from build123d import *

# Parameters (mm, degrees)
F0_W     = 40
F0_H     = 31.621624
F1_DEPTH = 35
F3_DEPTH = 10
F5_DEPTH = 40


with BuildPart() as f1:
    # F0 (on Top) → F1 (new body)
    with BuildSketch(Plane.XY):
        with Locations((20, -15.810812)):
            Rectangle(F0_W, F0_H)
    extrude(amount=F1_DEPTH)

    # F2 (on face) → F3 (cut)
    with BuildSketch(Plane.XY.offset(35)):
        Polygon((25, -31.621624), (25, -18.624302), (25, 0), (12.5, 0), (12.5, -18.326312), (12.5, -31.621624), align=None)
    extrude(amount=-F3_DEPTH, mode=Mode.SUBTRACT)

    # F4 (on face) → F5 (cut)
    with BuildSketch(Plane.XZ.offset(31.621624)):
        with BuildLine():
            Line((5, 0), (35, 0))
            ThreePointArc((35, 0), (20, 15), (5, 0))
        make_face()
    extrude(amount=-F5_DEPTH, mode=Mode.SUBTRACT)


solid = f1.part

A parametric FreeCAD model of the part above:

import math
import FreeCAD as App
import Part
import Sketcher

doc = App.newDocument("Part")
body = doc.addObject("PartDesign::Body", "Body")

# Sketch on XY plane
sketch1 = doc.addObject("Sketcher::SketchObject", "Sketch")
body.addObject(sketch1)
sketch1.AttachmentSupport = (doc.XY_Plane, [""])
sketch1.MapMode = "FlatFace"
sketch1.addGeometry([
    Part.LineSegment(App.Vector(0, 0, 0), App.Vector(0, -32, 0)),
    Part.LineSegment(App.Vector(0, -32, 0), App.Vector(40, -32, 0)),
    Part.LineSegment(App.Vector(40, -32, 0), App.Vector(40, 0, 0)),
    Part.LineSegment(App.Vector(40, 0, 0), App.Vector(0, 0, 0)),
], False)
sketch1.addConstraint([
    Sketcher.Constraint("Coincident", 0, 2, 1, 1),
    Sketcher.Constraint("Coincident", 1, 2, 2, 1),
    Sketcher.Constraint("Coincident", 2, 2, 3, 1),
    Sketcher.Constraint("Coincident", 3, 2, 0, 1),
    Sketcher.Constraint("Vertical", 0),
    Sketcher.Constraint("Horizontal", 1),
    Sketcher.Constraint("Vertical", 2),
    Sketcher.Constraint("Horizontal", 3),
    Sketcher.Constraint("Coincident", 3, 2, -1, 1),
    Sketcher.Constraint("DistanceX", 1, 1, 1, 2, 40.0),
    Sketcher.Constraint("DistanceY", 0, 2, 0, 1, 31.621624),
])
pad1 = doc.addObject("PartDesign::Pad", "Pad")
body.addObject(pad1)
pad1.Profile = sketch1
pad1.Length = 35

# Sketch on XY plane
sketch2 = doc.addObject("Sketcher::SketchObject", "Sketch001")
body.addObject(sketch2)
sketch2.AttachmentSupport = (doc.XY_Plane, [""])
sketch2.MapMode = "FlatFace"
sketch2.AttachmentOffset = App.Placement(App.Vector(0, 0, 35), App.Rotation())
sketch2.addGeometry([
    Part.LineSegment(App.Vector(25, -32, 0), App.Vector(25, 0, 0)),
    Part.LineSegment(App.Vector(25, 0, 0), App.Vector(12, 0, 0)),
    Part.LineSegment(App.Vector(12, 0, 0), App.Vector(12, -32, 0)),
    Part.LineSegment(App.Vector(12, -32, 0), App.Vector(25, -32, 0)),
], False)
sketch2.addConstraint([
    Sketcher.Constraint("Coincident", 0, 2, 1, 1),
    Sketcher.Constraint("Coincident", 1, 2, 2, 1),
    Sketcher.Constraint("Coincident", 2, 2, 3, 1),
    Sketcher.Constraint("Coincident", 3, 2, 0, 1),
    Sketcher.Constraint("Vertical", 0),
    Sketcher.Constraint("Horizontal", 1),
    Sketcher.Constraint("Vertical", 2),
    Sketcher.Constraint("Horizontal", 3),
    Sketcher.Constraint("PointOnObject", 0, 2, -1),
    Sketcher.Constraint("DistanceX", 1, 2, 1, 1, 12.5),
    Sketcher.Constraint("DistanceX", -1, 1, 0, 2, 25.0),
    Sketcher.Constraint("DistanceY", 0, 1, 0, 2, 31.621624),
])
pocket1 = doc.addObject("PartDesign::Pocket", "Pocket")
body.addObject(pocket1)
pocket1.Profile = sketch2
pocket1.Length = 10

# Sketch on XZ plane
sketch3 = doc.addObject("Sketcher::SketchObject", "Sketch002")
body.addObject(sketch3)
sketch3.AttachmentSupport = (doc.XZ_Plane, [""])
sketch3.MapMode = "FlatFace"
sketch3.AttachmentOffset = App.Placement(App.Vector(0, 0, 31.621624), App.Rotation())
sketch3.addGeometry([
    Part.LineSegment(App.Vector(5, 0, 0), App.Vector(35, 0, 0)),
    Part.ArcOfCircle(Part.Circle(App.Vector(20, 0, 0), App.Vector(0, 0, 1), 15), math.radians(0), math.radians(180)),
], False)
sketch3.addConstraint([
    Sketcher.Constraint("Coincident", 0, 1, 1, 2),
    Sketcher.Constraint("Coincident", 1, 1, 0, 2),
    Sketcher.Constraint("Horizontal", 0),
    Sketcher.Constraint("PointOnObject", 1, 3, -1),
    Sketcher.Constraint("PointOnObject", 0, 1, -1),
    Sketcher.Constraint("Radius", 1, 15.0),
    Sketcher.Constraint("DistanceX", -1, 1, 1, 3, 20.0),
])
pocket2 = doc.addObject("PartDesign::Pocket", "Pocket001")
body.addObject(pocket2)
pocket2.Profile = sketch3
pocket2.Length = 40

doc.recompute()
